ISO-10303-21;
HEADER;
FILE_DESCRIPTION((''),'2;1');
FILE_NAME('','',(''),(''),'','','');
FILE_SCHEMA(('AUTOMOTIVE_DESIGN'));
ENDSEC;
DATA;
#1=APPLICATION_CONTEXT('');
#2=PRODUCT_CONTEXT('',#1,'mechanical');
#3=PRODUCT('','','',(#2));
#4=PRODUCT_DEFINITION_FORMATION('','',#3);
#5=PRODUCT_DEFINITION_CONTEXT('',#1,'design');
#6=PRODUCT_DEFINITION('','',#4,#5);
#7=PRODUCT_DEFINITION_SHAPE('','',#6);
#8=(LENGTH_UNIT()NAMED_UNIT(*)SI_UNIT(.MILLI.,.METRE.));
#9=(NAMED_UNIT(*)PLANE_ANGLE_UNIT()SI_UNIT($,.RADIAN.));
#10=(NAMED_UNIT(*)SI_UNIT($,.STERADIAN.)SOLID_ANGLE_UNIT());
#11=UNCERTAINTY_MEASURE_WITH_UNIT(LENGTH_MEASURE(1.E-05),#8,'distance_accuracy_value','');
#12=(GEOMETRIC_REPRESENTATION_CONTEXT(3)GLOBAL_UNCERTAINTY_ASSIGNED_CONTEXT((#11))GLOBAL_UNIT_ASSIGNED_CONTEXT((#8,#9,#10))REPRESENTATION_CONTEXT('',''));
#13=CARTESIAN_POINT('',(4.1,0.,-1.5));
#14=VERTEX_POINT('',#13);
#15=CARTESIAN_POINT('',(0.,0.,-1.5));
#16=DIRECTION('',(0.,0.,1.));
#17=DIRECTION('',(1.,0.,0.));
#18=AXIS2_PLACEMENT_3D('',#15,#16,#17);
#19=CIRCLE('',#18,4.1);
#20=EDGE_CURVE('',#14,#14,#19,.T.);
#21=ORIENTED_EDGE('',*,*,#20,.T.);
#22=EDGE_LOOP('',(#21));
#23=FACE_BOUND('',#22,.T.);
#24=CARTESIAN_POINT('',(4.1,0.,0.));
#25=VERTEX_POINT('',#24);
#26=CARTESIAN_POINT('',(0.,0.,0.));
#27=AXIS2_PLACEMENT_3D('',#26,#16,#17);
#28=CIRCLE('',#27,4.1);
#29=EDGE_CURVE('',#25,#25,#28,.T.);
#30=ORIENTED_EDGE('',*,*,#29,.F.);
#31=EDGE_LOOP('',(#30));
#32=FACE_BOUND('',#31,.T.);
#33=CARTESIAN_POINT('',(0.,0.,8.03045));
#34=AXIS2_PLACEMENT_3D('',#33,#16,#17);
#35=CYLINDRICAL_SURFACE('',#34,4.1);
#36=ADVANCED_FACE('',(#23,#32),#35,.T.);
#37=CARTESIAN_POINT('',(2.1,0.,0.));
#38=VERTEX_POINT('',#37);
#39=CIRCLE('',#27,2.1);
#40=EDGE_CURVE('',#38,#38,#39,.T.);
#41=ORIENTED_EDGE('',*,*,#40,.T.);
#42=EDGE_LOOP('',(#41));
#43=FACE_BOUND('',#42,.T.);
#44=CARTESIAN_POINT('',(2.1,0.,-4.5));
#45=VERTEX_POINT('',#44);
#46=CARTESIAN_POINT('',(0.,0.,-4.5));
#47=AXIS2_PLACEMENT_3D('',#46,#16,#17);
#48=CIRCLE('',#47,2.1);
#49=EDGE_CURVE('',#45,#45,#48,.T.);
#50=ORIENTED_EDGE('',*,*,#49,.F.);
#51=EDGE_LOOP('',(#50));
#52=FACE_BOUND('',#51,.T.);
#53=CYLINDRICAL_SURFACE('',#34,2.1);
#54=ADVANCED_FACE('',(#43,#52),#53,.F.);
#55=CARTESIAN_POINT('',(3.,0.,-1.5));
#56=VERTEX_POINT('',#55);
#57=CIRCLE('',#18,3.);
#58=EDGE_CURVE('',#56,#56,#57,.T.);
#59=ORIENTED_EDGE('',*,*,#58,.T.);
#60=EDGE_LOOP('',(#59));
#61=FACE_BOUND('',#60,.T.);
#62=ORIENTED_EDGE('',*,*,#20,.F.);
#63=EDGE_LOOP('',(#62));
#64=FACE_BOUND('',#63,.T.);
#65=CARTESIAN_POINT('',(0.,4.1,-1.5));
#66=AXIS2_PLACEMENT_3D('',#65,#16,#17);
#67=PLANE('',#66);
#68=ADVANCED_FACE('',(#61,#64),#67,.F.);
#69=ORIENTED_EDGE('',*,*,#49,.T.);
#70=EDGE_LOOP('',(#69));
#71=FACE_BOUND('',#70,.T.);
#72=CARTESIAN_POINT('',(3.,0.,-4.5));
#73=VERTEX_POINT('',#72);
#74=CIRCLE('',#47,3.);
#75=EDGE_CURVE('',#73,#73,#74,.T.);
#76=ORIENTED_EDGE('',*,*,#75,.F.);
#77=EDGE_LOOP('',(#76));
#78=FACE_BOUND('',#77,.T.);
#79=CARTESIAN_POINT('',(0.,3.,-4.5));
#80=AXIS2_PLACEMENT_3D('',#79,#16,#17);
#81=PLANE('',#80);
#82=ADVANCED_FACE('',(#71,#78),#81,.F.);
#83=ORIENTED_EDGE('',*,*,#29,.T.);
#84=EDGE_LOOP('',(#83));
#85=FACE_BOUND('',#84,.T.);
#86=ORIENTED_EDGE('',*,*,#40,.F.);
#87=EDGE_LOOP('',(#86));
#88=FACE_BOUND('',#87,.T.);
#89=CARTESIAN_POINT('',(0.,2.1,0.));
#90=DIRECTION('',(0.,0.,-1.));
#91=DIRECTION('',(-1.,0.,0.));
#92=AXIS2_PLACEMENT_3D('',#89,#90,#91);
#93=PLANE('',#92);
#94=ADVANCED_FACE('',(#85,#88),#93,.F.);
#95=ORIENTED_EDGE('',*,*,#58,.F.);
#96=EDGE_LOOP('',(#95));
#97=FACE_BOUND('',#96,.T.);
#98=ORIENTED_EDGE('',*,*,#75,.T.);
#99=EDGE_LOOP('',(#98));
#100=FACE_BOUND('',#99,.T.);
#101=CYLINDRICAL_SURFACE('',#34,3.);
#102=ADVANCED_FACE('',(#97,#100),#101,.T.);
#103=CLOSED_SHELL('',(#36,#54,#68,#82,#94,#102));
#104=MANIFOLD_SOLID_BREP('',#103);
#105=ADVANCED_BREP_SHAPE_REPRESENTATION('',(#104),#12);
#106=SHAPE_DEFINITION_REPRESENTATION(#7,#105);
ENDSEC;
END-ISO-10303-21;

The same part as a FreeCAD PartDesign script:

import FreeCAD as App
import Part
import Sketcher

V = App.Vector


def add_polygon(sketch, points):
    """Adds a closed chain of lines whose ends are joined by coincident constraints."""
    first, n = sketch.GeometryCount, len(points)
    for a, b in zip(points, points[1:] + points[:1]):
        sketch.addGeometry(Part.LineSegment(App.Vector(*a, 0), App.Vector(*b, 0)), False)
    for i in range(n):
        sketch.addConstraint(Sketcher.Constraint("Coincident", first + i, 2, first + (i + 1) % n, 1))

doc = App.newDocument("Part")
params = doc.addObject("Spreadsheet::Sheet", "Params")
for row, (alias, value) in enumerate([
    ("sketch1_width", "2 mm"),
    ("sketch1_height", "3 mm"),
    ("sketch1_width2", "0.9 mm"),
    ("sketch1_height2", "4.5 mm"),
    ("revolution_angle", "360 deg"),
], start=1):
    params.set(f"A{row}", alias)
    params.set(f"B{row}", "=" + value)
    params.setAlias(f"B{row}", alias)

body = doc.addObject("PartDesign::Body", "Body")

sketch1 = body.newObject("Sketcher::SketchObject", "Sketch")
sketch1.AttachmentSupport = (doc.getObject("YZ_Plane"), [""])
sketch1.MapMode = "FlatFace"
add_polygon(sketch1, [(4.1, 0), (2.1, 0), (2.1, -4.5), (3, -4.5), (3, -1.5), (4.1, -1.5)])
sketch1.addConstraint([
    Sketcher.Constraint("Horizontal", 0),
    Sketcher.Constraint("Vertical", 1),
    Sketcher.Constraint("Horizontal", 2),
    Sketcher.Constraint("Vertical", 3),
    Sketcher.Constraint("Horizontal", 4),
    Sketcher.Constraint("Vertical", 5),
    Sketcher.Constraint("PointOnObject", 0, 2, -1),
    Sketcher.Constraint("DistanceX", 0, 2, 0, 1, 2.0),
    Sketcher.Constraint("DistanceY", 3, 1, 3, 2, 3.0),
    Sketcher.Constraint("DistanceX", 2, 1, 2, 2, 0.9),
    Sketcher.Constraint("DistanceY", 1, 2, 1, 1, 4.5),
    Sketcher.Constraint("DistanceX", -1, 1, 2, 2, 3.0),
])
sketch1.setExpression("Constraints[13]", "Params.sketch1_width")
sketch1.setExpression("Constraints[14]", "Params.sketch1_height")
sketch1.setExpression("Constraints[15]", "Params.sketch1_width2")
sketch1.setExpression("Constraints[16]", "Params.sketch1_height2")
revolution = body.newObject("PartDesign::Revolution", "Revolution")
revolution.Profile = sketch1
revolution.ReferenceAxis = (sketch1, ["V_Axis"])
revolution.setExpression("Angle", "Params.revolution_angle")

doc.recompute()
